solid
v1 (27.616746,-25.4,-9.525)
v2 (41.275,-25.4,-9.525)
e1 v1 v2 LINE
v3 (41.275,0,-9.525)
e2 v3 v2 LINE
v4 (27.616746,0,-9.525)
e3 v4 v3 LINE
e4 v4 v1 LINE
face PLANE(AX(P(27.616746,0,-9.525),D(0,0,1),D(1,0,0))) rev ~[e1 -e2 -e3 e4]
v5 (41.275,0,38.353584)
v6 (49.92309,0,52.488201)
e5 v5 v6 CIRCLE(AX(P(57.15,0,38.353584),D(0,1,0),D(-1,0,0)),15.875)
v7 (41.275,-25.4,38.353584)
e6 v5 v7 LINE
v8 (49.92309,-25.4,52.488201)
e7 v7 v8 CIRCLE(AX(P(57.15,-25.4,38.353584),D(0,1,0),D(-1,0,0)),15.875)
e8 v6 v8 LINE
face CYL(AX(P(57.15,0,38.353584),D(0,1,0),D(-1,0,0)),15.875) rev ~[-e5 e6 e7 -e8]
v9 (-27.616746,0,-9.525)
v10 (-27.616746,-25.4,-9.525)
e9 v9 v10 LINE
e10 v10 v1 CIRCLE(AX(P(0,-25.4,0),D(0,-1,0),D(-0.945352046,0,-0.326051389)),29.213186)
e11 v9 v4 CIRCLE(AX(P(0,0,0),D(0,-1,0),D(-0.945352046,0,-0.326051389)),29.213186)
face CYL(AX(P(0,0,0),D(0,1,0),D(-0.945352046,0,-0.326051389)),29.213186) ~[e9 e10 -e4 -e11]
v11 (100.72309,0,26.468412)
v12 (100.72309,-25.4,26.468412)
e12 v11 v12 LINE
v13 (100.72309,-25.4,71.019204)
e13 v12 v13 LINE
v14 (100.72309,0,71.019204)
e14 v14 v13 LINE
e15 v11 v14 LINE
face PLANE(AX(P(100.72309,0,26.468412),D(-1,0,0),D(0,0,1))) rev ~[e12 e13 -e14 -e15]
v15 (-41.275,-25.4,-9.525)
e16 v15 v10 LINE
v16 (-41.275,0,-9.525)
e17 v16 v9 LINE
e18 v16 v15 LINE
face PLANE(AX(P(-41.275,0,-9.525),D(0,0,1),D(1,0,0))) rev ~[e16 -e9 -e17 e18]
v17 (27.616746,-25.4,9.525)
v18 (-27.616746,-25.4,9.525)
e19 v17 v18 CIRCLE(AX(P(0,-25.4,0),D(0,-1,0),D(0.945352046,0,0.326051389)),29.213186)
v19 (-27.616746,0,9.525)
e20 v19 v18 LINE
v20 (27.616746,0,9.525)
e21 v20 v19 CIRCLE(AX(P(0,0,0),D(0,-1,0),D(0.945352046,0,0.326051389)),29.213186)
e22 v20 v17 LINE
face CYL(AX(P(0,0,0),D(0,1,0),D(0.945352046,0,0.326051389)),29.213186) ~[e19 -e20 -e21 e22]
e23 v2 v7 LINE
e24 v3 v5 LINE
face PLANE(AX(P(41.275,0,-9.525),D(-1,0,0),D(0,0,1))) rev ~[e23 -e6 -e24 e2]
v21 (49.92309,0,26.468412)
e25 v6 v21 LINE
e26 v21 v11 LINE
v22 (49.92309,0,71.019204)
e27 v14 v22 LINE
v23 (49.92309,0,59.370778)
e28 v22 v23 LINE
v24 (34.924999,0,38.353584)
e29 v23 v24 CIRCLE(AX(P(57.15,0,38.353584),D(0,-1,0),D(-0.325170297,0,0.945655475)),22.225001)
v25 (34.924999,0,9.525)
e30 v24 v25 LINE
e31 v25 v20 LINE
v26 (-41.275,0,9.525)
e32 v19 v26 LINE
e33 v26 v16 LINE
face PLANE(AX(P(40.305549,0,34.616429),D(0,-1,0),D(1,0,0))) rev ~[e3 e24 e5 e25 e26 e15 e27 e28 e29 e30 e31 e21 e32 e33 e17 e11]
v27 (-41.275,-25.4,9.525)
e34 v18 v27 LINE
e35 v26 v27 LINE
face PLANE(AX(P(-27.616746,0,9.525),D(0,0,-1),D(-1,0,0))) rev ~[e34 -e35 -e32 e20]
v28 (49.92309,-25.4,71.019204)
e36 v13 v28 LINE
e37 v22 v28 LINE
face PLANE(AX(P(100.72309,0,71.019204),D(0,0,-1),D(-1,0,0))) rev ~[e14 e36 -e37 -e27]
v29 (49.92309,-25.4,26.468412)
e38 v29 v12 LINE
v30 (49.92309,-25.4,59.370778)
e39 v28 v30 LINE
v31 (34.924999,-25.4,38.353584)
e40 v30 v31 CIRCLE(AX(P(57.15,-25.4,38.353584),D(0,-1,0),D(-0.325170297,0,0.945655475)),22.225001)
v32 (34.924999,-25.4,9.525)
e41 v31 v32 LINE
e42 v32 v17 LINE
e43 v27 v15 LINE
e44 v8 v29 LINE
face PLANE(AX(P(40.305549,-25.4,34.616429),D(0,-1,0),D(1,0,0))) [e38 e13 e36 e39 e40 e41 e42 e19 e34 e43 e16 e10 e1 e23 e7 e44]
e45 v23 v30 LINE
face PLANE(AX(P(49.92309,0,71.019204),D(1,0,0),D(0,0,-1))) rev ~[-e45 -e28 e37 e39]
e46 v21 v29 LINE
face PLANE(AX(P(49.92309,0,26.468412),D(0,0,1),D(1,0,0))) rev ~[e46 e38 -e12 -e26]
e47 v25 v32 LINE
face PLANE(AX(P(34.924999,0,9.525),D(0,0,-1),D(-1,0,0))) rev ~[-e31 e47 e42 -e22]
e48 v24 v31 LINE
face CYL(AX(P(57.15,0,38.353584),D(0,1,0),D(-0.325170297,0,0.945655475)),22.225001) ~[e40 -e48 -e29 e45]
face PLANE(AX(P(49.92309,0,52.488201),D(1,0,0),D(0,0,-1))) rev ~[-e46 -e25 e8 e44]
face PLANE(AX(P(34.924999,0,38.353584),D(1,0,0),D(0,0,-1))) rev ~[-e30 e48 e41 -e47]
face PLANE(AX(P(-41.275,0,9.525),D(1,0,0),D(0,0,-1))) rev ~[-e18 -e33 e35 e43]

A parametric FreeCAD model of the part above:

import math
import FreeCAD as App
import Part
import Sketcher

V = App.Vector
Q = App.Units.Quantity

doc = App.newDocument("Part")
body = doc.addObject("PartDesign::Body", "Body")

# Sketch on XZ plane
sketch1 = body.newObject("Sketcher::SketchObject", "Sketch")
sketch1.AttachmentSupport = (doc.getObject("XZ_Plane"), [""])
sketch1.MapMode = "FlatFace"
sketch1.addGeometry([
    Part.LineSegment(V(35, 38, 0), V(35, 10, 0)),  # 0
    Part.LineSegment(V(35, 10, 0), V(28, 10, 0)),  # 1
    Part.ArcOfCircle(Part.Circle(V(0, 0, 0), V(0, 0, 1), 29), math.radians(19), math.radians(161)),  # 2
    Part.LineSegment(V(-28, 10, 0), V(-41, 10, 0)),  # 3
    Part.LineSegment(V(-41, 10, 0), V(-41, -10, 0)),  # 4
    Part.LineSegment(V(-41, -10, 0), V(-28, -10, 0)),  # 5
    Part.ArcOfCircle(Part.Circle(V(0, 0, 0), V(0, 0, 1), 29), math.radians(-161), math.radians(-19)),  # 6
    Part.LineSegment(V(28, -10, 0), V(41, -10, 0)),  # 7
    Part.LineSegment(V(41, -10, 0), V(41, 38, 0)),  # 8
    Part.ArcOfCircle(Part.Circle(V(57, 38, 0), V(0, 0, 1), 16), math.radians(117), math.radians(180)),  # 9
    Part.LineSegment(V(50, 52, 0), V(50, 26, 0)),  # 10
    Part.LineSegment(V(50, 26, 0), V(101, 26, 0)),  # 11
    Part.LineSegment(V(101, 26, 0), V(101, 71, 0)),  # 12
    Part.LineSegment(V(101, 71, 0), V(50, 71, 0)),  # 13
    Part.LineSegment(V(50, 71, 0), V(50, 59, 0)),  # 14
    Part.ArcOfCircle(Part.Circle(V(57, 38, 0), V(0, 0, 1), 22), math.radians(109), math.radians(180)),  # 15
], False)
sketch1.addConstraint([
    Sketcher.Constraint("Coincident", 0, 2, 1, 1),
    Sketcher.Constraint("Coincident", 1, 2, 2, 1),
    Sketcher.Constraint("Coincident", 2, 2, 3, 1),
    Sketcher.Constraint("Coincident", 3, 2, 4, 1),
    Sketcher.Constraint("Coincident", 4, 2, 5, 1),
    Sketcher.Constraint("Coincident", 5, 2, 6, 1),
    Sketcher.Constraint("Coincident", 6, 2, 7, 1),
    Sketcher.Constraint("Coincident", 7, 2, 8, 1),
    Sketcher.Constraint("Tangent", 8, 2, 9, 2),
    Sketcher.Constraint("Coincident", 9, 1, 10, 1),
    Sketcher.Constraint("Coincident", 10, 2, 11, 1),
    Sketcher.Constraint("Coincident", 11, 2, 12, 1),
    Sketcher.Constraint("Coincident", 12, 2, 13, 1),
    Sketcher.Constraint("Coincident", 13, 2, 14, 1),
    Sketcher.Constraint("Coincident", 14, 2, 15, 1),
    Sketcher.Constraint("Tangent", 15, 2, 0, 1),
    Sketcher.Constraint("Vertical", 0),
    Sketcher.Constraint("Horizontal", 1),
    Sketcher.Constraint("Horizontal", 3),
    Sketcher.Constraint("Vertical", 4),
    Sketcher.Constraint("Horizontal", 5),
    Sketcher.Constraint("Horizontal", 7),
    Sketcher.Constraint("Vertical", 8),
    Sketcher.Constraint("Vertical", 10),
    Sketcher.Constraint("Horizontal", 11),
    Sketcher.Constraint("Vertical", 12),
    Sketcher.Constraint("Horizontal", 13),
    Sketcher.Constraint("Vertical", 14),
    Sketcher.Constraint("Coincident", 2, 3, -1, 1),
    Sketcher.Constraint("Coincident", 6, 3, -1, 1),
    Sketcher.Constraint("Coincident", 15, 3, 9, 3),
    Sketcher.Constraint("Equal", 2, 6),
    Sketcher.Constraint("Symmetric", 3, 2, 7, 2, -1, 1),
    Sketcher.Constraint("Horizontal", 1, 2, 2, 2),
    Sketcher.Constraint("Horizontal", 5, 2, 6, 2),
    Sketcher.Constraint("Vertical", 10, 2, 13, 2),
    Sketcher.Constraint("DistanceX", 11, 1, 11, 2, Q("2 in")),
    Sketcher.Constraint("Radius", 9, Q("0.625 in")),
    Sketcher.Constraint("Radius", 15, Q("0.875 in")),
    Sketcher.Constraint("DistanceX", 3, 2, 0, 2, Q("3 in")),
    Sketcher.Constraint("DistanceY", 4, 2, 4, 1, Q("0.75 in")),
    Sketcher.Constraint("Radius", 2, Q("29.213186 mm")),
    Sketcher.Constraint("DistanceY", 10, 2, 10, 1, Q("26.019789 mm")),
    Sketcher.Constraint("DistanceY", -1, 1, 9, 1, Q("52.488201 mm")),
    Sketcher.Constraint("DistanceY", 0, 2, 0, 1, Q("28.828584 mm")),
    Sketcher.Constraint("DistanceY", 12, 1, 12, 2, Q("44.550792 mm")),
])
pad1 = body.newObject("PartDesign::Pad", "Pad")
pad1.Profile = sketch1
pad1.Length = Q("1 in")

# Sketch on XZ plane
sketch2 = body.newObject("Sketcher::SketchObject", "Sketch001")
sketch2.AttachmentSupport = (doc.getObject("XZ_Plane"), [""])
sketch2.MapMode = "FlatFace"
sketch2.addGeometry([
    Part.LineSegment(V(35, 38, 0), V(35, 10, 0)),  # 0
    Part.LineSegment(V(35, 10, 0), V(28, 10, 0)),  # 1
    Part.ArcOfCircle(Part.Circle(V(0, 0, 0), V(0, 0, 1), 29), math.radians(19), math.radians(161)),  # 2
    Part.LineSegment(V(-28, 10, 0), V(-41, 10, 0)),  # 3
    Part.LineSegment(V(-41, 10, 0), V(-41, -10, 0)),  # 4
    Part.LineSegment(V(-41, -10, 0), V(-28, -10, 0)),  # 5
    Part.ArcOfCircle(Part.Circle(V(0, 0, 0), V(0, 0, 1), 29), math.radians(-161), math.radians(-19)),  # 6
    Part.LineSegment(V(28, -10, 0), V(41, -10, 0)),  # 7
    Part.LineSegment(V(41, -10, 0), V(41, 38, 0)),  # 8
    Part.ArcOfCircle(Part.Circle(V(57, 38, 0), V(0, 0, 1), 16), math.radians(117), math.radians(180)),  # 9
    Part.LineSegment(V(50, 52, 0), V(50, 26, 0)),  # 10
    Part.LineSegment(V(50, 26, 0), V(101, 26, 0)),  # 11
    Part.LineSegment(V(101, 26, 0), V(101, 71, 0)),  # 12
    Part.LineSegment(V(101, 71, 0), V(50, 71, 0)),  # 13
    Part.LineSegment(V(50, 71, 0), V(50, 59, 0)),  # 14
    Part.ArcOfCircle(Part.Circle(V(57, 38, 0), V(0, 0, 1), 22), math.radians(109), math.radians(180)),  # 15
], False)
sketch2.addConstraint([
    Sketcher.Constraint("Coincident", 0, 2, 1, 1),
    Sketcher.Constraint("Coincident", 1, 2, 2, 1),
    Sketcher.Constraint("Coincident", 2, 2, 3, 1),
    Sketcher.Constraint("Coincident", 3, 2, 4, 1),
    Sketcher.Constraint("Coincident", 4, 2, 5, 1),
    Sketcher.Constraint("Coincident", 5, 2, 6, 1),
    Sketcher.Constraint("Coincident", 6, 2, 7, 1),
    Sketcher.Constraint("Coincident", 7, 2, 8, 1),
    Sketcher.Constraint("Tangent", 8, 2, 9, 2),
    Sketcher.Constraint("Coincident", 9, 1, 10, 1),
    Sketcher.Constraint("Coincident", 10, 2, 11, 1),
    Sketcher.Constraint("Coincident", 11, 2, 12, 1),
    Sketcher.Constraint("Coincident", 12, 2, 13, 1),
    Sketcher.Constraint("Coincident", 13, 2, 14, 1),
    Sketcher.Constraint("Coincident", 14, 2, 15, 1),
    Sketcher.Constraint("Tangent", 15, 2, 0, 1),
    Sketcher.Constraint("Vertical", 0),
    Sketcher.Constraint("Horizontal", 1),
    Sketcher.Constraint("Horizontal", 3),
    Sketcher.Constraint("Vertical", 4),
    Sketcher.Constraint("Horizontal", 5),
    Sketcher.Constraint("Horizontal", 7),
    Sketcher.Constraint("Vertical", 8),
    Sketcher.Constraint("Vertical", 10),
    Sketcher.Constraint("Horizontal", 11),
    Sketcher.Constraint("Vertical", 12),
    Sketcher.Constraint("Horizontal", 13),
    Sketcher.Constraint("Vertical", 14),
    Sketcher.Constraint("Coincident", 2, 3, -1, 1),
    Sketcher.Constraint("Coincident", 6, 3, -1, 1),
    Sketcher.Constraint("Coincident", 15, 3, 9, 3),
    Sketcher.Constraint("Equal", 2, 6),
    Sketcher.Constraint("Symmetric", 3, 2, 7, 2, -1, 1),
    Sketcher.Constraint("Horizontal", 1, 2, 2, 2),
    Sketcher.Constraint("Horizontal", 5, 2, 6, 2),
    Sketcher.Constraint("Vertical", 10, 2, 13, 2),
    Sketcher.Constraint("DistanceX", 11, 1, 11, 2, Q("2 in")),
    Sketcher.Constraint("Radius", 9, Q("0.625 in")),
    Sketcher.Constraint("Radius", 15, Q("0.875 in")),
    Sketcher.Constraint("DistanceX", 3, 2, 0, 2, Q("3 in")),
    Sketcher.Constraint("DistanceY", 4, 2, 4, 1, Q("0.75 in")),
    Sketcher.Constraint("Radius", 2, Q("29.213186 mm")),
    Sketcher.Constraint("DistanceY", 10, 2, 10, 1, Q("26.019789 mm")),
    Sketcher.Constraint("DistanceY", -1, 1, 9, 1, Q("52.488201 mm")),
    Sketcher.Constraint("DistanceY", 0, 2, 0, 1, Q("28.828584 mm")),
    Sketcher.Constraint("DistanceY", 12, 1, 12, 2, Q("44.550792 mm")),
])
pad2 = body.newObject("PartDesign::Pad", "Pad001")
pad2.Profile = sketch2
pad2.Length = Q("1 in")

# Sketch on XZ plane
sketch3 = body.newObject("Sketcher::SketchObject", "Sketch002")
sketch3.AttachmentSupport = (doc.getObject("XZ_Plane"), [""])
sketch3.MapMode = "FlatFace"
sketch3.addGeometry([
    Part.LineSegment(V(35, 38, 0), V(35, 10, 0)),  # 0
    Part.LineSegment(V(35, 10, 0), V(28, 10, 0)),  # 1
    Part.ArcOfCircle(Part.Circle(V(0, 0, 0), V(0, 0, 1), 29), math.radians(19), math.radians(161)),  # 2
    Part.LineSegment(V(-28, 10, 0), V(-41, 10, 0)),  # 3
    Part.LineSegment(V(-41, 10, 0), V(-41, -10, 0)),  # 4
    Part.LineSegment(V(-41, -10, 0), V(-28, -10, 0)),  # 5
    Part.ArcOfCircle(Part.Circle(V(0, 0, 0), V(0, 0, 1), 29), math.radians(-161), math.radians(-19)),  # 6
    Part.LineSegment(V(28, -10, 0), V(41, -10, 0)),  # 7
    Part.LineSegment(V(41, -10, 0), V(41, 38, 0)),  # 8
    Part.ArcOfCircle(Part.Circle(V(57, 38, 0), V(0, 0, 1), 16), math.radians(117), math.radians(180)),  # 9
    Part.LineSegment(V(50, 52, 0), V(50, 26, 0)),  # 10
    Part.LineSegment(V(50, 26, 0), V(101, 26, 0)),  # 11
    Part.LineSegment(V(101, 26, 0), V(101, 71, 0)),  # 12
    Part.LineSegment(V(101, 71, 0), V(50, 71, 0)),  # 13
    Part.LineSegment(V(50, 71, 0), V(50, 59, 0)),  # 14
    Part.ArcOfCircle(Part.Circle(V(57, 38, 0), V(0, 0, 1), 22), math.radians(109), math.radians(180)),  # 15
], False)
sketch3.addConstraint([
    Sketcher.Constraint("Coincident", 0, 2, 1, 1),
    Sketcher.Constraint("Coincident", 1, 2, 2, 1),
    Sketcher.Constraint("Coincident", 2, 2, 3, 1),
    Sketcher.Constraint("Coincident", 3, 2, 4, 1),
    Sketcher.Constraint("Coincident", 4, 2, 5, 1),
    Sketcher.Constraint("Coincident", 5, 2, 6, 1),
    Sketcher.Constraint("Coincident", 6, 2, 7, 1),
    Sketcher.Constraint("Coincident", 7, 2, 8, 1),
    Sketcher.Constraint("Tangent", 8, 2, 9, 2),
    Sketcher.Constraint("Coincident", 9, 1, 10, 1),
    Sketcher.Constraint("Coincident", 10, 2, 11, 1),
    Sketcher.Constraint("Coincident", 11, 2, 12, 1),
    Sketcher.Constraint("Coincident", 12, 2, 13, 1),
    Sketcher.Constraint("Coincident", 13, 2, 14, 1),
    Sketcher.Constraint("Coincident", 14, 2, 15, 1),
    Sketcher.Constraint("Tangent", 15, 2, 0, 1),
    Sketcher.Constraint("Vertical", 0),
    Sketcher.Constraint("Horizontal", 1),
    Sketcher.Constraint("Horizontal", 3),
    Sketcher.Constraint("Vertical", 4),
    Sketcher.Constraint("Horizontal", 5),
    Sketcher.Constraint("Horizontal", 7),
    Sketcher.Constraint("Vertical", 8),
    Sketcher.Constraint("Vertical", 10),
    Sketcher.Constraint("Horizontal", 11),
    Sketcher.Constraint("Vertical", 12),
    Sketcher.Constraint("Horizontal", 13),
    Sketcher.Constraint("Vertical", 14),
    Sketcher.Constraint("Coincident", 2, 3, -1, 1),
    Sketcher.Constraint("Coincident", 6, 3, -1, 1),
    Sketcher.Constraint("Coincident", 15, 3, 9, 3),
    Sketcher.Constraint("Equal", 2, 6),
    Sketcher.Constraint("Symmetric", 3, 2, 7, 2, -1, 1),
    Sketcher.Constraint("Horizontal", 1, 2, 2, 2),
    Sketcher.Constraint("Horizontal", 5, 2, 6, 2),
    Sketcher.Constraint("Vertical", 10, 2, 13, 2),
    Sketcher.Constraint("DistanceX", 11, 1, 11, 2, Q("2 in")),
    Sketcher.Constraint("Radius", 9, Q("0.625 in")),
    Sketcher.Constraint("Radius", 15, Q("0.875 in")),
    Sketcher.Constraint("DistanceX", 3, 2, 0, 2, Q("3 in")),
    Sketcher.Constraint("DistanceY", 4, 2, 4, 1, Q("0.75 in")),
    Sketcher.Constraint("Radius", 2, Q("29.213186 mm")),
    Sketcher.Constraint("DistanceY", 10, 2, 10, 1, Q("26.019789 mm")),
    Sketcher.Constraint("DistanceY", -1, 1, 9, 1, Q("52.488201 mm")),
    Sketcher.Constraint("DistanceY", 0, 2, 0, 1, Q("28.828584 mm")),
    Sketcher.Constraint("DistanceY", 12, 1, 12, 2, Q("44.550792 mm")),
])
pad3 = body.newObject("PartDesign::Pad", "Pad002")
pad3.Profile = sketch3
pad3.Length = Q("1 in")

# Sketch on XZ plane
sketch4 = body.newObject("Sketcher::SketchObject", "Sketch003")
sketch4.AttachmentSupport = (doc.getObject("XZ_Plane"), [""])
sketch4.MapMode = "FlatFace"
sketch4.addGeometry([
    Part.LineSegment(V(35, 38, 0), V(35, 10, 0)),  # 0
    Part.LineSegment(V(35, 10, 0), V(28, 10, 0)),  # 1
    Part.ArcOfCircle(Part.Circle(V(0, 0, 0), V(0, 0, 1), 29), math.radians(19), math.radians(161)),  # 2
    Part.LineSegment(V(-28, 10, 0), V(-41, 10, 0)),  # 3
    Part.LineSegment(V(-41, 10, 0), V(-41, -10, 0)),  # 4
    Part.LineSegment(V(-41, -10, 0), V(-28, -10, 0)),  # 5
    Part.ArcOfCircle(Part.Circle(V(0, 0, 0), V(0, 0, 1), 29), math.radians(-161), math.radians(-19)),  # 6
    Part.LineSegment(V(28, -10, 0), V(41, -10, 0)),  # 7
    Part.LineSegment(V(41, -10, 0), V(41, 38, 0)),  # 8
    Part.ArcOfCircle(Part.Circle(V(57, 38, 0), V(0, 0, 1), 16), math.radians(117), math.radians(180)),  # 9
    Part.LineSegment(V(50, 52, 0), V(50, 26, 0)),  # 10
    Part.LineSegment(V(50, 26, 0), V(101, 26, 0)),  # 11
    Part.LineSegment(V(101, 26, 0), V(101, 71, 0)),  # 12
    Part.LineSegment(V(101, 71, 0), V(50, 71, 0)),  # 13
    Part.LineSegment(V(50, 71, 0), V(50, 59, 0)),  # 14
    Part.ArcOfCircle(Part.Circle(V(57, 38, 0), V(0, 0, 1), 22), math.radians(109), math.radians(180)),  # 15
], False)
sketch4.addConstraint([
    Sketcher.Constraint("Coincident", 0, 2, 1, 1),
    Sketcher.Constraint("Coincident", 1, 2, 2, 1),
    Sketcher.Constraint("Coincident", 2, 2, 3, 1),
    Sketcher.Constraint("Coincident", 3, 2, 4, 1),
    Sketcher.Constraint("Coincident", 4, 2, 5, 1),
    Sketcher.Constraint("Coincident", 5, 2, 6, 1),
    Sketcher.Constraint("Coincident", 6, 2, 7, 1),
    Sketcher.Constraint("Coincident", 7, 2, 8, 1),
    Sketcher.Constraint("Tangent", 8, 2, 9, 2),
    Sketcher.Constraint("Coincident", 9, 1, 10, 1),
    Sketcher.Constraint("Coincident", 10, 2, 11, 1),
    Sketcher.Constraint("Coincident", 11, 2, 12, 1),
    Sketcher.Constraint("Coincident", 12, 2, 13, 1),
    Sketcher.Constraint("Coincident", 13, 2, 14, 1),
    Sketcher.Constraint("Coincident", 14, 2, 15, 1),
    Sketcher.Constraint("Tangent", 15, 2, 0, 1),
    Sketcher.Constraint("Vertical", 0),
    Sketcher.Constraint("Horizontal", 1),
    Sketcher.Constraint("Horizontal", 3),
    Sketcher.Constraint("Vertical", 4),
    Sketcher.Constraint("Horizontal", 5),
    Sketcher.Constraint("Horizontal", 7),
    Sketcher.Constraint("Vertical", 8),
    Sketcher.Constraint("Vertical", 10),
    Sketcher.Constraint("Horizontal", 11),
    Sketcher.Constraint("Vertical", 12),
    Sketcher.Constraint("Horizontal", 13),
    Sketcher.Constraint("Vertical", 14),
    Sketcher.Constraint("Coincident", 2, 3, -1, 1),
    Sketcher.Constraint("Coincident", 6, 3, -1, 1),
    Sketcher.Constraint("Coincident", 15, 3, 9, 3),
    Sketcher.Constraint("Equal", 2, 6),
    Sketcher.Constraint("Symmetric", 3, 2, 7, 2, -1, 1),
    Sketcher.Constraint("Horizontal", 1, 2, 2, 2),
    Sketcher.Constraint("Horizontal", 5, 2, 6, 2),
    Sketcher.Constraint("Vertical", 10, 2, 13, 2),
    Sketcher.Constraint("DistanceX", 11, 1, 11, 2, Q("2 in")),
    Sketcher.Constraint("Radius", 9, Q("0.625 in")),
    Sketcher.Constraint("Radius", 15, Q("0.875 in")),
    Sketcher.Constraint("DistanceX", 3, 2, 0, 2, Q("3 in")),
    Sketcher.Constraint("DistanceY", 4, 2, 4, 1, Q("0.75 in")),
    Sketcher.Constraint("Radius", 2, Q("29.213186 mm")),
    Sketcher.Constraint("DistanceY", 10, 2, 10, 1, Q("26.019789 mm")),
    Sketcher.Constraint("DistanceY", -1, 1, 9, 1, Q("52.488201 mm")),
    Sketcher.Constraint("DistanceY", 0, 2, 0, 1, Q("28.828584 mm")),
    Sketcher.Constraint("DistanceY", 12, 1, 12, 2, Q("44.550792 mm")),
])
pad4 = body.newObject("PartDesign::Pad", "Pad003")
pad4.Profile = sketch4
pad4.Length = Q("1 in")

doc.recompute()
